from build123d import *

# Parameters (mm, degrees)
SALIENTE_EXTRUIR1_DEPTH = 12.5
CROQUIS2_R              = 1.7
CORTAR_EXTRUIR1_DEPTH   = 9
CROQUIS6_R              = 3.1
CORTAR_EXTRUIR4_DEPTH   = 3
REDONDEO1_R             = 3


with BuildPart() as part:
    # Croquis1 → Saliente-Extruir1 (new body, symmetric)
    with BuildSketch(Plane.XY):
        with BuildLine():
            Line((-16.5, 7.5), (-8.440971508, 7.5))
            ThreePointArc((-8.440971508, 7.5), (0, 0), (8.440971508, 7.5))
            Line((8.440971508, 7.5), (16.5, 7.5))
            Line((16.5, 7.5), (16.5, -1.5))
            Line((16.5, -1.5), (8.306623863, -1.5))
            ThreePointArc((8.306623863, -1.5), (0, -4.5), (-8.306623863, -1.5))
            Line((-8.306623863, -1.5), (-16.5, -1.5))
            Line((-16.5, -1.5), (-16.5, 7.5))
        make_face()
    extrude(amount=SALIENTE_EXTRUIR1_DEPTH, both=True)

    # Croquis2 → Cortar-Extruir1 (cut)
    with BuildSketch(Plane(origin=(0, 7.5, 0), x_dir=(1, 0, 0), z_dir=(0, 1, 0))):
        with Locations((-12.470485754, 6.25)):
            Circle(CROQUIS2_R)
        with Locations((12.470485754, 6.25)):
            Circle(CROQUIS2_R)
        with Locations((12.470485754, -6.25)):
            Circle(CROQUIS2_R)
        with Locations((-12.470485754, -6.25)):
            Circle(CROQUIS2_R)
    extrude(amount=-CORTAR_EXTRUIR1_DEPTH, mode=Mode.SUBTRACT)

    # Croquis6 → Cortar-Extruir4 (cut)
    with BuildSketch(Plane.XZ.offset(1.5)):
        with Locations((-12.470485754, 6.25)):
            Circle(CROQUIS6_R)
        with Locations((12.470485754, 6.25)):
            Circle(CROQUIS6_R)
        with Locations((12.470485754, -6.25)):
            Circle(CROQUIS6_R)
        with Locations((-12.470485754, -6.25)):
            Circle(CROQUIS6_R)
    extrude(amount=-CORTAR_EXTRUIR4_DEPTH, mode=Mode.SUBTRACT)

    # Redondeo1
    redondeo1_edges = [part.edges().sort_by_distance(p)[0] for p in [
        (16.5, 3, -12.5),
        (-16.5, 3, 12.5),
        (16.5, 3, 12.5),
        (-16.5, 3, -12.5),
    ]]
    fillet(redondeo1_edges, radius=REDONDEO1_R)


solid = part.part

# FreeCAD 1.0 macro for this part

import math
import FreeCAD as App
import Part
import Sketcher
Q = App.Units.Quantity


def edges_at(feature, points):
    """Names of the edges that pass closest to the given points."""
    edges = feature.Shape.Edges
    near = lambda p: min(range(len(edges)), key=lambda i: edges[i].distToShape(Part.Vertex(*p))[0])
    return sorted({f"Edge{near(p) + 1}" for p in points})

doc = App.newDocument("Part")
params = doc.addObject("Spreadsheet::Sheet", "Params")
for row, (alias, value) in enumerate([
    ("sketch1_radius", "13 mm"),
    ("sketch1_radius2", "8.5 mm"),
    ("sketch1_height", "9 mm"),
    ("pad1_length", "25 mm"),
    ("sketch2_diameter", "3.4 mm"),
    ("pocket1_length", "9 mm"),
    ("sketch3_diameter", "6.2 mm"),
    ("pocket2_length", "3 mm"),
    ("fillet_radius", "3 mm"),
], start=1):
    params.set(f"A{row}", alias)
    params.set(f"B{row}", "=" + value)
    params.setAlias(f"B{row}", alias)

body = doc.addObject("PartDesign::Body", "Body")

sketch1 = body.newObject("Sketcher::SketchObject", "Sketch")
sketch1.AttachmentSupport = (doc.getObject("XY_Plane"), [""])
sketch1.MapMode = "FlatFace"
sketch1.addGeometry([
    Part.LineSegment(App.Vector(-8, 8, 0), App.Vector(-16, 8, 0)),
    Part.LineSegment(App.Vector(-16, 8, 0), App.Vector(-16, -2, 0)),
    Part.LineSegment(App.Vector(-16, -2, 0), App.Vector(-8, -2, 0)),
    Part.ArcOfCircle(Part.Circle(App.Vector(0, 8, 0), App.Vector(0, 0, 1), 13), math.radians(-130), math.radians(-50)),
    Part.LineSegment(App.Vector(8, -2, 0), App.Vector(16, -2, 0)),
    Part.LineSegment(App.Vector(16, -2, 0), App.Vector(16, 8, 0)),
    Part.LineSegment(App.Vector(16, 8, 0), App.Vector(8, 8, 0)),
    Part.ArcOfCircle(Part.Circle(App.Vector(0, 8, 0), App.Vector(0, 0, 1), 8), math.radians(-173), math.radians(-7)),
], False)
sketch1.addConstraint([
    Sketcher.Constraint("Coincident", 0, 2, 1, 1),
    Sketcher.Constraint("Coincident", 1, 2, 2, 1),
    Sketcher.Constraint("Coincident", 2, 2, 3, 1),
    Sketcher.Constraint("Coincident", 3, 2, 4, 1),
    Sketcher.Constraint("Coincident", 4, 2, 5, 1),
    Sketcher.Constraint("Coincident", 5, 2, 6, 1),
    Sketcher.Constraint("Coincident", 6, 2, 7, 2),
    Sketcher.Constraint("Coincident", 7, 1, 0, 1),
    Sketcher.Constraint("Horizontal", 0),
    Sketcher.Constraint("Vertical", 1),
    Sketcher.Constraint("Horizontal", 2),
    Sketcher.Constraint("Horizontal", 4),
    Sketcher.Constraint("Vertical", 5),
    Sketcher.Constraint("Horizontal", 6),
    Sketcher.Constraint("Coincident", 7, 3, 3, 3),
    Sketcher.Constraint("Symmetric", 2, 2, 3, 2, -2),
    Sketcher.Constraint("Symmetric", 0, 2, 5, 2, -2),
    Sketcher.Constraint("Radius", 3, Q("13 mm")),
    Sketcher.Constraint("Radius", 7, Q("8.5 mm")),
    Sketcher.Constraint("DistanceY", 1, 2, 1, 1, Q("9 mm")),
    Sketcher.Constraint("DistanceY", 0, 2, 3, 3, Q("1 mm")),
    Sketcher.Constraint("DistanceX", 1, 2, 4, 2, Q("33 mm")),
    Sketcher.Constraint("DistanceY", -1, 1, 3, 3, Q("8.5 mm")),
])
sketch1.setExpression("Constraints[17]", "Params.sketch1_radius")
sketch1.setExpression("Constraints[18]", "Params.sketch1_radius2")
sketch1.setExpression("Constraints[19]", "Params.sketch1_height")
pad1 = body.newObject("PartDesign::Pad", "Pad")
pad1.Profile = sketch1
pad1.setExpression("Length", "Params.pad1_length")
pad1.Midplane = True

sketch2 = body.newObject("Sketcher::SketchObject", "Sketch001")
sketch2.AttachmentSupport = (doc.getObject("XZ_Plane"), [""])
sketch2.MapMode = "FlatFace"
sketch2.AttachmentOffset = App.Placement(App.Vector(0, 0, -7.5), App.Rotation())
sketch2.addGeometry([
    Part.Circle(App.Vector(-12.5, -6.2, 0), App.Vector(0, 0, 1), 1.7),
    Part.Circle(App.Vector(12.5, -6.2, 0), App.Vector(0, 0, 1), 1.7),
    Part.Circle(App.Vector(12.5, 6.2, 0), App.Vector(0, 0, 1), 1.7),
    Part.Circle(App.Vector(-12.5, 6.2, 0), App.Vector(0, 0, 1), 1.7),
], False)
sketch2.addConstraint([
    Sketcher.Constraint("Equal", 0, 1),
    Sketcher.Constraint("Equal", 1, 2),
    Sketcher.Constraint("Equal", 2, 3),
    Sketcher.Constraint("Symmetric", 0, 3, 2, 3, -1, 1),
    Sketcher.Constraint("Symmetric", 1, 3, 3, 3, -1, 1),
    Sketcher.Constraint("Symmetric", 0, 3, 1, 3, -2),
    Sketcher.Constraint("Diameter", 0, Q("3.4 mm")),
    Sketcher.Constraint("DistanceY", 1, 3, 2, 3, Q("12.5 mm")),
    Sketcher.Constraint("DistanceX", 0, 3, 1, 3, Q("24.940972 mm")),
])
sketch2.setExpression("Constraints[6]", "Params.sketch2_diameter")
pocket1 = body.newObject("PartDesign::Pocket", "Pocket")
pocket1.Profile = sketch2
pocket1.setExpression("Length", "Params.pocket1_length")
pocket1.Reversed = True

sketch3 = body.newObject("Sketcher::SketchObject", "Sketch002")
sketch3.AttachmentSupport = (doc.getObject("XZ_Plane"), [""])
sketch3.MapMode = "FlatFace"
sketch3.AttachmentOffset = App.Placement(App.Vector(0, 0, 1.5), App.Rotation())
sketch3.addGeometry([
    Part.Circle(App.Vector(-12.5, 6.2, 0), App.Vector(0, 0, 1), 3.1),
    Part.Circle(App.Vector(12.5, 6.2, 0), App.Vector(0, 0, 1), 3.1),
    Part.Circle(App.Vector(12.5, -6.2, 0), App.Vector(0, 0, 1), 3.1),
    Part.Circle(App.Vector(-12.5, -6.2, 0), App.Vector(0, 0, 1), 3.1),
], False)
sketch3.addConstraint([
    Sketcher.Constraint("Equal", 0, 1),
    Sketcher.Constraint("Equal", 1, 2),
    Sketcher.Constraint("Equal", 2, 3),
    Sketcher.Constraint("Symmetric", 0, 3, 2, 3, -1, 1),
    Sketcher.Constraint("Symmetric", 1, 3, 3, 3, -1, 1),
    Sketcher.Constraint("Symmetric", 0, 3, 1, 3, -2),
    Sketcher.Constraint("Diameter", 0, Q("6.2 mm")),
    Sketcher.Constraint("DistanceY", 2, 3, 1, 3, Q("12.5 mm")),
    Sketcher.Constraint("DistanceX", 0, 3, 1, 3, Q("24.940972 mm")),
])
sketch3.setExpression("Constraints[6]", "Params.sketch3_diameter")
pocket2 = body.newObject("PartDesign::Pocket", "Pocket001")
pocket2.Profile = sketch3
pocket2.setExpression("Length", "Params.pocket2_length")
doc.recompute()

fillet = body.newObject("PartDesign::Fillet", "Fillet")
fillet.Base = (pocket2, edges_at(pocket2, [
    (16.5, 3, -12.5),
    (-16.5, 3, 12.5),
    (16.5, 3, 12.5),
    (-16.5, 3, -12.5),
]))
fillet.setExpression("Radius", "Params.fillet_radius")

doc.recompute()
